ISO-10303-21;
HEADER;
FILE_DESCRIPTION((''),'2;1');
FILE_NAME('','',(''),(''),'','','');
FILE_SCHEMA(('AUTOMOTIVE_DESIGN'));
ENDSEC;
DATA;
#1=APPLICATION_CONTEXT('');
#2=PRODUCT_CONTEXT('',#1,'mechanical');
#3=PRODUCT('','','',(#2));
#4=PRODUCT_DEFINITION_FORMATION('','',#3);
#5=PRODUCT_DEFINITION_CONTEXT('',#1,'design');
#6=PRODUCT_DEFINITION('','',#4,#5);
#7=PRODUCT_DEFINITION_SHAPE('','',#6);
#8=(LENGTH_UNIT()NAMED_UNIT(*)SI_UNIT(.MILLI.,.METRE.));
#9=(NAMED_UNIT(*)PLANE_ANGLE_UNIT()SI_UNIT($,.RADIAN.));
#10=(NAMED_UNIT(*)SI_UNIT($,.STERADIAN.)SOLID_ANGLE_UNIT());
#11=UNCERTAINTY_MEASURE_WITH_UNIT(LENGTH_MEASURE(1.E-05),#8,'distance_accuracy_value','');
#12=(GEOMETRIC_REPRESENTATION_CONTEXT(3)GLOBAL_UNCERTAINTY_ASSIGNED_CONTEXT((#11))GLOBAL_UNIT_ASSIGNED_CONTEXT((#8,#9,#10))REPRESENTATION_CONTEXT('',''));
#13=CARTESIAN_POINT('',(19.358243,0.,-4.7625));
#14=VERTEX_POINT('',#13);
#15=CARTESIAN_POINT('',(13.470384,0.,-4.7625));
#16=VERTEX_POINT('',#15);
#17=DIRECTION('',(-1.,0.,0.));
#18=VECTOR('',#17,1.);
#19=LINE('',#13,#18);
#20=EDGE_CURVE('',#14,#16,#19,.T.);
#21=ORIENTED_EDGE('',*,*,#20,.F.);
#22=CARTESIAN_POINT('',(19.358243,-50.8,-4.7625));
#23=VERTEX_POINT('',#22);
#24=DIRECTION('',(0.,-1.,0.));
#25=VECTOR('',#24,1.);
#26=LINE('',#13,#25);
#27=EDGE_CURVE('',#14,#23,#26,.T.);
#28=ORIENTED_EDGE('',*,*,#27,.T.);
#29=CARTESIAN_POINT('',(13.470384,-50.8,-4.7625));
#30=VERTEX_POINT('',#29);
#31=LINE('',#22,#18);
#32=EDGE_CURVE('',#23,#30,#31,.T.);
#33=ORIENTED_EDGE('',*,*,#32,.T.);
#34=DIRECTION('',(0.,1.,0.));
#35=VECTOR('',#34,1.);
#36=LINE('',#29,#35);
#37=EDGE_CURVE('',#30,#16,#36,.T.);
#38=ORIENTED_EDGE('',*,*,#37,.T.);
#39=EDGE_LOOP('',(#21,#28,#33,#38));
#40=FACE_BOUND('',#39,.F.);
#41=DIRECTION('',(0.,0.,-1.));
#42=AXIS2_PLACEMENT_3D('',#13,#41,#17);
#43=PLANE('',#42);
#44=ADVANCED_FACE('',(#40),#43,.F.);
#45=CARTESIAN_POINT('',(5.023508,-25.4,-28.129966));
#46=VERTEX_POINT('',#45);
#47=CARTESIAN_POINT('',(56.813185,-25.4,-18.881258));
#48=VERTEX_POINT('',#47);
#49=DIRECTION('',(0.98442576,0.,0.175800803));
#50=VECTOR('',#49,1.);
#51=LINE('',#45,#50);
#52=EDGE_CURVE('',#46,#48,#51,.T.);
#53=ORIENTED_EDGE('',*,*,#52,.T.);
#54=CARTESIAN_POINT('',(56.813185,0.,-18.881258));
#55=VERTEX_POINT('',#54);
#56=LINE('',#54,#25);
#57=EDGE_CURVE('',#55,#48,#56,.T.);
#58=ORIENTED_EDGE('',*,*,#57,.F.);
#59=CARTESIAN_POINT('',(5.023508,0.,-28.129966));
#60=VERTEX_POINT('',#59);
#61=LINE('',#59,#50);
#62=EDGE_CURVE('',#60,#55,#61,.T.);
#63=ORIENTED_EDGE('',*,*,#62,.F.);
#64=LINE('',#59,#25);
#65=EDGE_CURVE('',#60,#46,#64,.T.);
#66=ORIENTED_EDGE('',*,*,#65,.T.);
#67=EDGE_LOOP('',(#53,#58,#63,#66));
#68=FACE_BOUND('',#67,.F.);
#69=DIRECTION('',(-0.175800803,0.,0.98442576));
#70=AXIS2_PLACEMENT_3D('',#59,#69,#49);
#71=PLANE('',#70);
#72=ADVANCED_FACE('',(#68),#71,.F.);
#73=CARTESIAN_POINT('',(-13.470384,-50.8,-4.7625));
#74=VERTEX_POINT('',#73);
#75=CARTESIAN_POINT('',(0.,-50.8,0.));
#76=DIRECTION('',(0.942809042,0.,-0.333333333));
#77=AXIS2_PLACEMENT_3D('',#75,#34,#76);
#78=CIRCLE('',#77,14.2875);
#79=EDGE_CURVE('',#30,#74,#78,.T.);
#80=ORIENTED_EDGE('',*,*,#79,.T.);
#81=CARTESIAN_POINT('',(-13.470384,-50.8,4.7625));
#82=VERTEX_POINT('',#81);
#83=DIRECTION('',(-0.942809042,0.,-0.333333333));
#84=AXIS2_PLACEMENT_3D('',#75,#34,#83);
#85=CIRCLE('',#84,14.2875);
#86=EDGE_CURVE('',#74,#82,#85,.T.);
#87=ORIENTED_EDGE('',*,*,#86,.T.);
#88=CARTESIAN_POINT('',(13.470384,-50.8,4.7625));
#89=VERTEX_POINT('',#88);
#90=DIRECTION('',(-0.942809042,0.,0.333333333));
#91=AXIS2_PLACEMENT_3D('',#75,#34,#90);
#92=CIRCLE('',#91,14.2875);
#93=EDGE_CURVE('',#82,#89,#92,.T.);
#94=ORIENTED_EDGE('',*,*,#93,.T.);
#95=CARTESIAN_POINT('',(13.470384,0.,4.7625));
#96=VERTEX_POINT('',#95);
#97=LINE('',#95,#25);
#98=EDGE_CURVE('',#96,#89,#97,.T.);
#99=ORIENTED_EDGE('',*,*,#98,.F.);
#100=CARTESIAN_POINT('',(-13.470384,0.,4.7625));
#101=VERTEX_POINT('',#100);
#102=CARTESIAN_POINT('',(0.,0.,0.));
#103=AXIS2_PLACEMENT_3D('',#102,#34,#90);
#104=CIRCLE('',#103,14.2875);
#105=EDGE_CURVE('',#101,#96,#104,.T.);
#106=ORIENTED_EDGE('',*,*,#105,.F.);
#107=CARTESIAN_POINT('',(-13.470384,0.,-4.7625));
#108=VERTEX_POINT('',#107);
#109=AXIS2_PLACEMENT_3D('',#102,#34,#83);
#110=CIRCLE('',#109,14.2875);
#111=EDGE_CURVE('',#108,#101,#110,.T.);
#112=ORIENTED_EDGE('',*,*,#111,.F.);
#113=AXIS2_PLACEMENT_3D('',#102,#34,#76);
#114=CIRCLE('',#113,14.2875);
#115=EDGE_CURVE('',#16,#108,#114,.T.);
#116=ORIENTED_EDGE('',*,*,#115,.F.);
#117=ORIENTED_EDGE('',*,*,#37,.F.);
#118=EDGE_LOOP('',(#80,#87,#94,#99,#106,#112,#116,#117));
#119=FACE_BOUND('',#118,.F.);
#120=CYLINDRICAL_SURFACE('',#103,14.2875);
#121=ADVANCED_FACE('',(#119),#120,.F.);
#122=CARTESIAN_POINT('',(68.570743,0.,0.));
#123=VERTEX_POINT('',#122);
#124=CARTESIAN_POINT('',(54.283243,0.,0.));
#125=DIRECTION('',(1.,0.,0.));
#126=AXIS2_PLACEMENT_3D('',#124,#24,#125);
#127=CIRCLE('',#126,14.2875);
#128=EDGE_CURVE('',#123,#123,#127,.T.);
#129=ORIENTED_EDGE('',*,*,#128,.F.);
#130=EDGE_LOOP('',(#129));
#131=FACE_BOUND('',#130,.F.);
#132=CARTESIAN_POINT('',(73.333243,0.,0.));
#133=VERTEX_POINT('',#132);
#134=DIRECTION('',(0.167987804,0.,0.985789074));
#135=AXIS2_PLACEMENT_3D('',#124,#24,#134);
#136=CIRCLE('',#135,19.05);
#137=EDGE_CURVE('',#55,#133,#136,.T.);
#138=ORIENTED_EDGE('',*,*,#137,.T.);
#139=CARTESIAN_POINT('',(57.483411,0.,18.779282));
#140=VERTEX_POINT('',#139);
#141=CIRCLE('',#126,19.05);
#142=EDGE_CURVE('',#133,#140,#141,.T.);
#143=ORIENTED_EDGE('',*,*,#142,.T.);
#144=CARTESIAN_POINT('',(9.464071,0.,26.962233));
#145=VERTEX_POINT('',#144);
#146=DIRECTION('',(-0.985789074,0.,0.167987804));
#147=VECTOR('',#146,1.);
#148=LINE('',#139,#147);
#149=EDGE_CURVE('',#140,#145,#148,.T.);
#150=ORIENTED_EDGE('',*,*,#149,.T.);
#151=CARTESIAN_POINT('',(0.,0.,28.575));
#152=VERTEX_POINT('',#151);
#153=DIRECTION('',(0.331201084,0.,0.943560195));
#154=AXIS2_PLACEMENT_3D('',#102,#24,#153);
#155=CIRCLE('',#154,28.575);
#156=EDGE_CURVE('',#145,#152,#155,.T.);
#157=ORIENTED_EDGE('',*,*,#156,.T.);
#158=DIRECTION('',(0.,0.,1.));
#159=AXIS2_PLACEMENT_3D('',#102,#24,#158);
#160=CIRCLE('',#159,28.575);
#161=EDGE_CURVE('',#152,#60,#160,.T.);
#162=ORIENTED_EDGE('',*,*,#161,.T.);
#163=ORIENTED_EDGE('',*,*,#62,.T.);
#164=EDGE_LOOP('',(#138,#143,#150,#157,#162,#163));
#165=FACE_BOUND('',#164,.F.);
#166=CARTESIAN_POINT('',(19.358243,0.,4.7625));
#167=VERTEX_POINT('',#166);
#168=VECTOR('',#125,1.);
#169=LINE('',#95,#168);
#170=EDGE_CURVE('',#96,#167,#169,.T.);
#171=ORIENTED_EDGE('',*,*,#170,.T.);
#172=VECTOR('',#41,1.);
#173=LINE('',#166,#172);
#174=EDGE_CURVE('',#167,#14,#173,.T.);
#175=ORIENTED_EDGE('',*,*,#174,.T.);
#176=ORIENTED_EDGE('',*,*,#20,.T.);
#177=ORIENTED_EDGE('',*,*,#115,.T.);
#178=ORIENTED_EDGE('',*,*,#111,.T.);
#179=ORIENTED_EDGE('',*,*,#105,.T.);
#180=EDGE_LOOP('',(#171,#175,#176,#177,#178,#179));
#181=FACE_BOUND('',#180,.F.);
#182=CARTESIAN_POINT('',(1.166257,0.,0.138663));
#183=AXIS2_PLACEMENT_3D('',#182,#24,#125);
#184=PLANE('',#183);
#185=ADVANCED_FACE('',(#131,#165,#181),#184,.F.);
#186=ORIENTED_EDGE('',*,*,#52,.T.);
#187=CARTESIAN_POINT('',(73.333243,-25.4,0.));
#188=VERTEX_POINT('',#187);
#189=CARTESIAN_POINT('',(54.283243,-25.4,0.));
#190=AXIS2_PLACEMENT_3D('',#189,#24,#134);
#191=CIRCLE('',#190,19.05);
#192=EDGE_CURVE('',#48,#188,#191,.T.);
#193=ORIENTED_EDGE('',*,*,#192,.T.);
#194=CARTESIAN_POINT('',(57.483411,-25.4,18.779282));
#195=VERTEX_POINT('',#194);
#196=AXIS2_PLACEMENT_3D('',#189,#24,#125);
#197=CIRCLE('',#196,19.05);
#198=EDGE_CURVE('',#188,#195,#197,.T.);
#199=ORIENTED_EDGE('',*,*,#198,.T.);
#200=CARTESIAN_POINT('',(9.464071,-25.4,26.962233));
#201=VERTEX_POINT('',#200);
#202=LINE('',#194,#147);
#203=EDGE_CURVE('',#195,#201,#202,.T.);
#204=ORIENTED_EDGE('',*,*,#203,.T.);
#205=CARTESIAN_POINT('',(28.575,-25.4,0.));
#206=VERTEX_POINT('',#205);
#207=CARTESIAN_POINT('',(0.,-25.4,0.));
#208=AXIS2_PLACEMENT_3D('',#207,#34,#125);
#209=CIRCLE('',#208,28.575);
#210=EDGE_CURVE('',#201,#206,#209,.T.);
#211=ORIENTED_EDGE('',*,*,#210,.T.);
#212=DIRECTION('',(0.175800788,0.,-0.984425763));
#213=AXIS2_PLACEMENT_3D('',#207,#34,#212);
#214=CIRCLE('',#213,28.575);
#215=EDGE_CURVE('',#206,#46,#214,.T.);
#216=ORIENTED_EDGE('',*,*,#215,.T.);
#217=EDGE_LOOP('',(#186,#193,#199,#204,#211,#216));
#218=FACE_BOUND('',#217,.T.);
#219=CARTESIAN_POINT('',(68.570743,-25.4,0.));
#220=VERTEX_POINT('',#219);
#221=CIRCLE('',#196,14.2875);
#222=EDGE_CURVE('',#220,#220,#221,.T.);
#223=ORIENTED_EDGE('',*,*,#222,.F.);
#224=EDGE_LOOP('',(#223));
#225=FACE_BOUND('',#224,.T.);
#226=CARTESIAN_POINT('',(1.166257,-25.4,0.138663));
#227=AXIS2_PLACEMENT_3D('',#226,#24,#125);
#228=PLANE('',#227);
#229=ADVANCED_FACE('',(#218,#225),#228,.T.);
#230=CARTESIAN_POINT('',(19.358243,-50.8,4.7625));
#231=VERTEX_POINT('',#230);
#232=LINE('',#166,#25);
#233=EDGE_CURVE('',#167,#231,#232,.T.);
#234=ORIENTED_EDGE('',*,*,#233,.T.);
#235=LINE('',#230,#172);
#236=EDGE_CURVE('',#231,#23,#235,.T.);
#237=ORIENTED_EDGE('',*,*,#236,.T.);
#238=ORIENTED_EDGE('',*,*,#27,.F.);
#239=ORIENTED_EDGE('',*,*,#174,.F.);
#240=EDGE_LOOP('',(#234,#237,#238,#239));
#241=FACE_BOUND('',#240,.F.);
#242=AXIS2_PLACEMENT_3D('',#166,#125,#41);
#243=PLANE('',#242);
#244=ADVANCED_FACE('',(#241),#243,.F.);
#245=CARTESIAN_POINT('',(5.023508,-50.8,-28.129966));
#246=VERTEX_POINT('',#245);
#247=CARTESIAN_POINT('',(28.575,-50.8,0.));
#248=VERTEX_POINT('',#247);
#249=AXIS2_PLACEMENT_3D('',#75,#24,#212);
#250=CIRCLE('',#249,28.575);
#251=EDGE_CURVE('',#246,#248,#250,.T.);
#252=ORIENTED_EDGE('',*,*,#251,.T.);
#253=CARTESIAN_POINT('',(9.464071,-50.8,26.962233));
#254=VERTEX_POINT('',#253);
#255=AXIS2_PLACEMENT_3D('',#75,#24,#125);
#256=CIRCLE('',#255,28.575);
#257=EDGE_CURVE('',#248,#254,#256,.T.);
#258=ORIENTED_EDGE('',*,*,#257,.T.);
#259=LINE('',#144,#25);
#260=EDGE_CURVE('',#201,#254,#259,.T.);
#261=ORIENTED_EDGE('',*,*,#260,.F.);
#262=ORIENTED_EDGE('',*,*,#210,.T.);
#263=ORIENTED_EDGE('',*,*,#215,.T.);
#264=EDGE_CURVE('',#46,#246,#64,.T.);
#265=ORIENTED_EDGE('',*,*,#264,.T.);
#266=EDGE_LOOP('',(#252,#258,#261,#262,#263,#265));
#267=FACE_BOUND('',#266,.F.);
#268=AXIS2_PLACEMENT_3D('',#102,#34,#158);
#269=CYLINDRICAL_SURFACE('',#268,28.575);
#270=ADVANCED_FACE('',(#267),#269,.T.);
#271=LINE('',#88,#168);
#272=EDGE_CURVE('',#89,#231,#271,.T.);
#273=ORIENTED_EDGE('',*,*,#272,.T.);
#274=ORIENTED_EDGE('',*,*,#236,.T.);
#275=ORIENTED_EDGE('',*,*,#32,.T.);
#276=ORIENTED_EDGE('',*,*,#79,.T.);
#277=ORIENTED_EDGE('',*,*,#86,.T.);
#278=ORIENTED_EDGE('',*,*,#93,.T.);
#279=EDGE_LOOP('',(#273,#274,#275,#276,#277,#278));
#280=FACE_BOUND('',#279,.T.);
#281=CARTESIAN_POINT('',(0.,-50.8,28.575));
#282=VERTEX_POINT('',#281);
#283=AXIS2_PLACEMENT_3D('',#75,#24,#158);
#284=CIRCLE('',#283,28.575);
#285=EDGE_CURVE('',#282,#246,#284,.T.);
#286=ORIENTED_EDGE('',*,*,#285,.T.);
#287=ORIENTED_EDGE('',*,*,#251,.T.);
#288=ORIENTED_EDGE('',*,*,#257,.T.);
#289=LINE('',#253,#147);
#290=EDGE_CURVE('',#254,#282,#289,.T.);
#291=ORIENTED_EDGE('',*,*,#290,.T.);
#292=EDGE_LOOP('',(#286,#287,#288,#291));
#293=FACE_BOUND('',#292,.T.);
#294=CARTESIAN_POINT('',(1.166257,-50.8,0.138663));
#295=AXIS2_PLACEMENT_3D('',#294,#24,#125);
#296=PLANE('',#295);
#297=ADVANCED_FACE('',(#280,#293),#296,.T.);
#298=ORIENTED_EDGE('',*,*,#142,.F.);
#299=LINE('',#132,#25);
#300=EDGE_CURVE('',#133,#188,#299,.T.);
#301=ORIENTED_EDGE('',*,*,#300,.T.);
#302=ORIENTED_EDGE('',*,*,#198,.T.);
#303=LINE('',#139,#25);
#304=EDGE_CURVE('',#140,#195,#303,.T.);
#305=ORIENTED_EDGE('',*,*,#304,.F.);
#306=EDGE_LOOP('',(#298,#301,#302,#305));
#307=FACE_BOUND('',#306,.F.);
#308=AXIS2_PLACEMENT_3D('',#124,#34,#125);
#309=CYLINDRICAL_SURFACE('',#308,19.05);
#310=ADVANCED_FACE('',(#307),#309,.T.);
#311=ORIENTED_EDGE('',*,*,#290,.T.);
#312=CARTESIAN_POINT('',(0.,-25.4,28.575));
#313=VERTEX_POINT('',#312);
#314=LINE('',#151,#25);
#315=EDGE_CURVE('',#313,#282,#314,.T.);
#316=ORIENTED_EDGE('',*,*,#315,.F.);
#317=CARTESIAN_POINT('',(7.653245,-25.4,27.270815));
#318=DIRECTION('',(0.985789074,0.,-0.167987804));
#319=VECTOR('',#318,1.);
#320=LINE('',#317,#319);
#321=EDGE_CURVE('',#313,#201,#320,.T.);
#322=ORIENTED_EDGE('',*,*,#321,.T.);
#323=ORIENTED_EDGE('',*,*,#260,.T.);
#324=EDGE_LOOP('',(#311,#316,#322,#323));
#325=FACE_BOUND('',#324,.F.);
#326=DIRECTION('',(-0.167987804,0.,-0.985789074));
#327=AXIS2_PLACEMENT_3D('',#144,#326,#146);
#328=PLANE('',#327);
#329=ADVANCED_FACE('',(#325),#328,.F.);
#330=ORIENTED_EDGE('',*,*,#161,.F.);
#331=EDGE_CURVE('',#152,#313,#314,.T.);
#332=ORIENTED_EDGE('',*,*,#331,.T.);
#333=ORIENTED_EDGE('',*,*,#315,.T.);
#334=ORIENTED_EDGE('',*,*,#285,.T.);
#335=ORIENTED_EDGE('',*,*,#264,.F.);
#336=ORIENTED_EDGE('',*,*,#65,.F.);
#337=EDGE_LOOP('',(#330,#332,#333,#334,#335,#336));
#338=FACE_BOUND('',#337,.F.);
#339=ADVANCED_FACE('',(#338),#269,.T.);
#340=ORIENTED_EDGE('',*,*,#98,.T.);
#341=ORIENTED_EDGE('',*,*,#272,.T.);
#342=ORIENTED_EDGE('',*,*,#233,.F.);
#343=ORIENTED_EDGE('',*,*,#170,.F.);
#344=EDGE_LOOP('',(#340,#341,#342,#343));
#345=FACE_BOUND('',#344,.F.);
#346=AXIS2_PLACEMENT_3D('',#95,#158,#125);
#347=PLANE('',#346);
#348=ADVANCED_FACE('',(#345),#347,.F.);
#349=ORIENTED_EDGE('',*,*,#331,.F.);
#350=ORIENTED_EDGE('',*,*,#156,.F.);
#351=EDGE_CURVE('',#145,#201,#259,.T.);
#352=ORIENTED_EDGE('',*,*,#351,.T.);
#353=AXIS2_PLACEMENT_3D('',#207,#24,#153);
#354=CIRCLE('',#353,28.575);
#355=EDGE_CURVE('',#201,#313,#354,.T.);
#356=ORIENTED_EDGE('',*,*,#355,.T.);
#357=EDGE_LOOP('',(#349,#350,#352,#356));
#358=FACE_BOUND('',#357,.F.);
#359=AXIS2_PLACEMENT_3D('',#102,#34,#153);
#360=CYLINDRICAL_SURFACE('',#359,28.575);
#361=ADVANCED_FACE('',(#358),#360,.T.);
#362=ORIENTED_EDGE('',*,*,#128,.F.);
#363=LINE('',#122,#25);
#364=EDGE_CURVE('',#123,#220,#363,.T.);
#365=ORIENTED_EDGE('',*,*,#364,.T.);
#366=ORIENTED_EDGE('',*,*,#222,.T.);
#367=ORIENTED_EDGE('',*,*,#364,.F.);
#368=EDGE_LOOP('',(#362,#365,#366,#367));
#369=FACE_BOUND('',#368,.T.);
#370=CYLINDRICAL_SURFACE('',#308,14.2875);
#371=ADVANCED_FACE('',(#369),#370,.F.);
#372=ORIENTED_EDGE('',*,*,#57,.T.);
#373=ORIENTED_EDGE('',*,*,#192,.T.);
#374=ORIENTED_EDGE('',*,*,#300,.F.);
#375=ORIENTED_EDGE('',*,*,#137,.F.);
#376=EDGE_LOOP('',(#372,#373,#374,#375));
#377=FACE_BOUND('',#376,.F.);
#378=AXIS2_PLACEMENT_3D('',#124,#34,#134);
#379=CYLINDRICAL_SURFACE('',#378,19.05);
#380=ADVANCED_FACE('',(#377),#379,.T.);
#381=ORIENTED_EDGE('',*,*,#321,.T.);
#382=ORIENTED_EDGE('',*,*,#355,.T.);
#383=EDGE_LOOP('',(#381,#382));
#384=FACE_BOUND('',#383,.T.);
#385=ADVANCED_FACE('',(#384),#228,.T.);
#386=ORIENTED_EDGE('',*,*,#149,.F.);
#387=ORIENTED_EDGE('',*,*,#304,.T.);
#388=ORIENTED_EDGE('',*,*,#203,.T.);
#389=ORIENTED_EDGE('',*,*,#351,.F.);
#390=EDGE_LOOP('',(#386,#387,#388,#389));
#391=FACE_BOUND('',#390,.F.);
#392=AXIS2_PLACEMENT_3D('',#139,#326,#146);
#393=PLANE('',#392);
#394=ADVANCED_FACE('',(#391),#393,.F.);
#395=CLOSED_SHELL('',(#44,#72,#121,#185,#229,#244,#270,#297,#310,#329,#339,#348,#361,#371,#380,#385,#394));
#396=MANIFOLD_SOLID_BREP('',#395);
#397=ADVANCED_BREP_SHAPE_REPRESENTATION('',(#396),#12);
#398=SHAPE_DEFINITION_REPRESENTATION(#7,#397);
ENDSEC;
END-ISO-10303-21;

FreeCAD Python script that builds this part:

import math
import FreeCAD as App
import Part
import Sketcher
from FreeCAD import Vector
Q = App.Units.Quantity

doc = App.newDocument("Part")
body = doc.addObject("PartDesign::Body", "Body")

sketch1 = body.newObject("Sketcher::SketchObject", "Sketch")
sketch1.AttachmentSupport = (doc.getObject("XZ_Plane"), [""])
sketch1.MapMode = "FlatFace"
sketch1.addGeometry([
    Part.ArcOfCircle(Part.Circle(Vector(0, 0, 0), Vector(0, 0, 1), 29), math.radians(90), math.radians(280)),
    Part.LineSegment(Vector(5, -28, 0), Vector(57, -19, 0)),
    Part.ArcOfCircle(Part.Circle(Vector(54, 0, 0), Vector(0, 0, 1), 19), math.radians(-82), math.radians(0)),
    Part.ArcOfCircle(Part.Circle(Vector(54, 0, 0), Vector(0, 0, 1), 19), math.radians(0), math.radians(80)),
    Part.LineSegment(Vector(57, 19, 0), Vector(9, 27, 0)),
    Part.ArcOfCircle(Part.Circle(Vector(0, 0, 0), Vector(0, 0, 1), 29), math.radians(70.66), math.radians(90)),
    Part.Circle(Vector(54, 0, 0), Vector(0, 0, 1), 14),
    Part.LineSegment(Vector(-19, 5, 0), Vector(-13, 5, 0)),
    Part.ArcOfCircle(Part.Circle(Vector(0, 0, 0), Vector(0, 0, 1), 14), math.radians(19), math.radians(161)),
    Part.LineSegment(Vector(13, 5, 0), Vector(19, 5, 0)),
    Part.LineSegment(Vector(19, 5, 0), Vector(19, -5, 0)),
    Part.LineSegment(Vector(19, -5, 0), Vector(13, -5, 0)),
    Part.ArcOfCircle(Part.Circle(Vector(0, 0, 0), Vector(0, 0, 1), 14), math.radians(-161), math.radians(-19)),
    Part.LineSegment(Vector(-13, -5, 0), Vector(-19, -5, 0)),
    Part.LineSegment(Vector(-19, -5, 0), Vector(-19, 5, 0)),
], False)
sketch1.addConstraint([
    Sketcher.Constraint("Tangent", 0, 2, 1, 1),
    Sketcher.Constraint("Coincident", 1, 2, 2, 1),
    Sketcher.Constraint("Tangent", 2, 2, 3, 1),
    Sketcher.Constraint("Tangent", 3, 2, 4, 1),
    Sketcher.Constraint("Coincident", 4, 2, 5, 1),
    Sketcher.Constraint("Tangent", 5, 2, 0, 1),
    Sketcher.Constraint("Coincident", 7, 2, 8, 2),
    Sketcher.Constraint("Coincident", 8, 1, 9, 1),
    Sketcher.Constraint("Coincident", 9, 2, 10, 1),
    Sketcher.Constraint("Coincident", 10, 2, 11, 1),
    Sketcher.Constraint("Coincident", 11, 2, 12, 2),
    Sketcher.Constraint("Coincident", 12, 1, 13, 1),
    Sketcher.Constraint("Coincident", 13, 2, 14, 1),
    Sketcher.Constraint("Coincident", 14, 2, 7, 1),
    Sketcher.Constraint("Horizontal", 7),
    Sketcher.Constraint("Horizontal", 9),
    Sketcher.Constraint("Vertical", 10),
    Sketcher.Constraint("Horizontal", 11),
    Sketcher.Constraint("Horizontal", 13),
    Sketcher.Constraint("Vertical", 14),
    Sketcher.Constraint("Coincident", 0, 3, -1, 1),
    Sketcher.Constraint("Coincident", 8, 3, -1, 1),
    Sketcher.Constraint("Coincident", 12, 3, -1, 1),
    Sketcher.Constraint("Coincident", 6, 3, 2, 3),
    Sketcher.Constraint("Equal", 2, 3),
    Sketcher.Constraint("Equal", 0, 5),
    Sketcher.Constraint("Equal", 6, 8),
    Sketcher.Constraint("Equal", 8, 12),
    Sketcher.Constraint("PointOnObject", 2, 3, -1),
    Sketcher.Constraint("PointOnObject", 2, 2, -1),
    Sketcher.Constraint("PointOnObject", 5, 2, -2),
    Sketcher.Constraint("Horizontal", 7, 2, 8, 1),
    Sketcher.Constraint("Horizontal", 11, 2, 12, 1),
    Sketcher.Constraint("Vertical", 8, 1, 11, 2),
    Sketcher.Constraint("Radius", 2, Q("0.75 in")),
    Sketcher.Constraint("Diameter", 6, Q("1.125 in")),
    Sketcher.Constraint("Radius", 0, Q("1.125 in")),
    Sketcher.Constraint("DistanceY", 10, 2, 10, 1, Q("0.375 in")),
    Sketcher.Constraint("DistanceX", 9, 1, 9, 2, 5.887859),
    Sketcher.Constraint("DistanceX", 7, 1, 7, 2, 5.271373),
    Sketcher.Constraint("DistanceX", -1, 1, 3, 2, 57.483411),
    Sketcher.Constraint("DistanceY", -1, 1, 3, 2, 18.779282),
    Sketcher.Constraint("DistanceX", 2, 3, 1, 2, 2.529942),
])
pad1 = body.newObject("PartDesign::Pad", "Pad")
pad1.Profile = sketch1
pad1.Length = Q("1 in")

sketch2 = body.newObject("Sketcher::SketchObject", "Sketch001")
sketch2.AttachmentSupport = (doc.getObject("XZ_Plane"), [""])
sketch2.MapMode = "FlatFace"
sketch2.addGeometry([
    Part.ArcOfCircle(Part.Circle(Vector(0, 0, 0), Vector(0, 0, 1), 29), math.radians(-80), math.radians(0)),
    Part.ArcOfCircle(Part.Circle(Vector(0, 0, 0), Vector(0, 0, 1), 29), math.radians(0), math.radians(71)),
    Part.LineSegment(Vector(9, 27, 0), Vector(0, 29, 0)),
    Part.ArcOfCircle(Part.Circle(Vector(0, 0, 0), Vector(0, 0, 1), 29), math.radians(90), math.radians(280)),
    Part.ArcOfCircle(Part.Circle(Vector(0, 0, 0), Vector(0, 0, 1), 14), math.radians(-161), math.radians(-19)),
    Part.ArcOfCircle(Part.Circle(Vector(0, 0, 0), Vector(0, 0, 1), 14), math.radians(161), math.radians(199)),
    Part.ArcOfCircle(Part.Circle(Vector(0, 0, 0), Vector(0, 0, 1), 14), math.radians(19), math.radians(161)),
    Part.LineSegment(Vector(13, 5, 0), Vector(19, 5, 0)),
    Part.LineSegment(Vector(19, 5, 0), Vector(19, -5, 0)),
    Part.LineSegment(Vector(19, -5, 0), Vector(13, -5, 0)),
], False)
sketch2.addConstraint([
    Sketcher.Constraint("Tangent", 0, 2, 1, 1),
    Sketcher.Constraint("Coincident", 1, 2, 2, 1),
    Sketcher.Constraint("Coincident", 2, 2, 3, 1),
    Sketcher.Constraint("Tangent", 3, 2, 0, 1),
    Sketcher.Constraint("Tangent", 4, 1, 5, 2),
    Sketcher.Constraint("Tangent", 5, 1, 6, 2),
    Sketcher.Constraint("Coincident", 6, 1, 7, 1),
    Sketcher.Constraint("Coincident", 7, 2, 8, 1),
    Sketcher.Constraint("Coincident", 8, 2, 9, 1),
    Sketcher.Constraint("Coincident", 9, 2, 4, 2),
    Sketcher.Constraint("Horizontal", 7),
    Sketcher.Constraint("Vertical", 8),
    Sketcher.Constraint("Horizontal", 9),
    Sketcher.Constraint("Coincident", 0, 3, -1, 1),
    Sketcher.Constraint("Coincident", 4, 3, -1, 1),
    Sketcher.Constraint("Coincident", 6, 3, -1, 1),
    Sketcher.Constraint("Equal", 0, 1),
    Sketcher.Constraint("Equal", 1, 3),
    Sketcher.Constraint("PointOnObject", 0, 2, -1),
    Sketcher.Constraint("PointOnObject", 2, 2, -2),
    Sketcher.Constraint("Horizontal", 5, 1, 6, 1),
    Sketcher.Constraint("Horizontal", 4, 1, 8, 2),
    Sketcher.Constraint("Vertical", 4, 1, 5, 1),
    Sketcher.Constraint("Radius", 0, Q("1.125 in")),
    Sketcher.Constraint("Radius", 4, Q("0.5625 in")),
    Sketcher.Constraint("DistanceY", 8, 2, 8, 1, Q("0.375 in")),
    Sketcher.Constraint("DistanceX", 7, 1, 7, 2, 5.887859),
    Sketcher.Constraint("DistanceX", -1, 1, 1, 2, 9.464071),
    Sketcher.Constraint("DistanceX", -1, 1, 3, 2, 5.023508),
])
pad2 = body.newObject("PartDesign::Pad", "Pad001")
pad2.Profile = sketch2
pad2.Length = Q("2 in")

doc.recompute()
